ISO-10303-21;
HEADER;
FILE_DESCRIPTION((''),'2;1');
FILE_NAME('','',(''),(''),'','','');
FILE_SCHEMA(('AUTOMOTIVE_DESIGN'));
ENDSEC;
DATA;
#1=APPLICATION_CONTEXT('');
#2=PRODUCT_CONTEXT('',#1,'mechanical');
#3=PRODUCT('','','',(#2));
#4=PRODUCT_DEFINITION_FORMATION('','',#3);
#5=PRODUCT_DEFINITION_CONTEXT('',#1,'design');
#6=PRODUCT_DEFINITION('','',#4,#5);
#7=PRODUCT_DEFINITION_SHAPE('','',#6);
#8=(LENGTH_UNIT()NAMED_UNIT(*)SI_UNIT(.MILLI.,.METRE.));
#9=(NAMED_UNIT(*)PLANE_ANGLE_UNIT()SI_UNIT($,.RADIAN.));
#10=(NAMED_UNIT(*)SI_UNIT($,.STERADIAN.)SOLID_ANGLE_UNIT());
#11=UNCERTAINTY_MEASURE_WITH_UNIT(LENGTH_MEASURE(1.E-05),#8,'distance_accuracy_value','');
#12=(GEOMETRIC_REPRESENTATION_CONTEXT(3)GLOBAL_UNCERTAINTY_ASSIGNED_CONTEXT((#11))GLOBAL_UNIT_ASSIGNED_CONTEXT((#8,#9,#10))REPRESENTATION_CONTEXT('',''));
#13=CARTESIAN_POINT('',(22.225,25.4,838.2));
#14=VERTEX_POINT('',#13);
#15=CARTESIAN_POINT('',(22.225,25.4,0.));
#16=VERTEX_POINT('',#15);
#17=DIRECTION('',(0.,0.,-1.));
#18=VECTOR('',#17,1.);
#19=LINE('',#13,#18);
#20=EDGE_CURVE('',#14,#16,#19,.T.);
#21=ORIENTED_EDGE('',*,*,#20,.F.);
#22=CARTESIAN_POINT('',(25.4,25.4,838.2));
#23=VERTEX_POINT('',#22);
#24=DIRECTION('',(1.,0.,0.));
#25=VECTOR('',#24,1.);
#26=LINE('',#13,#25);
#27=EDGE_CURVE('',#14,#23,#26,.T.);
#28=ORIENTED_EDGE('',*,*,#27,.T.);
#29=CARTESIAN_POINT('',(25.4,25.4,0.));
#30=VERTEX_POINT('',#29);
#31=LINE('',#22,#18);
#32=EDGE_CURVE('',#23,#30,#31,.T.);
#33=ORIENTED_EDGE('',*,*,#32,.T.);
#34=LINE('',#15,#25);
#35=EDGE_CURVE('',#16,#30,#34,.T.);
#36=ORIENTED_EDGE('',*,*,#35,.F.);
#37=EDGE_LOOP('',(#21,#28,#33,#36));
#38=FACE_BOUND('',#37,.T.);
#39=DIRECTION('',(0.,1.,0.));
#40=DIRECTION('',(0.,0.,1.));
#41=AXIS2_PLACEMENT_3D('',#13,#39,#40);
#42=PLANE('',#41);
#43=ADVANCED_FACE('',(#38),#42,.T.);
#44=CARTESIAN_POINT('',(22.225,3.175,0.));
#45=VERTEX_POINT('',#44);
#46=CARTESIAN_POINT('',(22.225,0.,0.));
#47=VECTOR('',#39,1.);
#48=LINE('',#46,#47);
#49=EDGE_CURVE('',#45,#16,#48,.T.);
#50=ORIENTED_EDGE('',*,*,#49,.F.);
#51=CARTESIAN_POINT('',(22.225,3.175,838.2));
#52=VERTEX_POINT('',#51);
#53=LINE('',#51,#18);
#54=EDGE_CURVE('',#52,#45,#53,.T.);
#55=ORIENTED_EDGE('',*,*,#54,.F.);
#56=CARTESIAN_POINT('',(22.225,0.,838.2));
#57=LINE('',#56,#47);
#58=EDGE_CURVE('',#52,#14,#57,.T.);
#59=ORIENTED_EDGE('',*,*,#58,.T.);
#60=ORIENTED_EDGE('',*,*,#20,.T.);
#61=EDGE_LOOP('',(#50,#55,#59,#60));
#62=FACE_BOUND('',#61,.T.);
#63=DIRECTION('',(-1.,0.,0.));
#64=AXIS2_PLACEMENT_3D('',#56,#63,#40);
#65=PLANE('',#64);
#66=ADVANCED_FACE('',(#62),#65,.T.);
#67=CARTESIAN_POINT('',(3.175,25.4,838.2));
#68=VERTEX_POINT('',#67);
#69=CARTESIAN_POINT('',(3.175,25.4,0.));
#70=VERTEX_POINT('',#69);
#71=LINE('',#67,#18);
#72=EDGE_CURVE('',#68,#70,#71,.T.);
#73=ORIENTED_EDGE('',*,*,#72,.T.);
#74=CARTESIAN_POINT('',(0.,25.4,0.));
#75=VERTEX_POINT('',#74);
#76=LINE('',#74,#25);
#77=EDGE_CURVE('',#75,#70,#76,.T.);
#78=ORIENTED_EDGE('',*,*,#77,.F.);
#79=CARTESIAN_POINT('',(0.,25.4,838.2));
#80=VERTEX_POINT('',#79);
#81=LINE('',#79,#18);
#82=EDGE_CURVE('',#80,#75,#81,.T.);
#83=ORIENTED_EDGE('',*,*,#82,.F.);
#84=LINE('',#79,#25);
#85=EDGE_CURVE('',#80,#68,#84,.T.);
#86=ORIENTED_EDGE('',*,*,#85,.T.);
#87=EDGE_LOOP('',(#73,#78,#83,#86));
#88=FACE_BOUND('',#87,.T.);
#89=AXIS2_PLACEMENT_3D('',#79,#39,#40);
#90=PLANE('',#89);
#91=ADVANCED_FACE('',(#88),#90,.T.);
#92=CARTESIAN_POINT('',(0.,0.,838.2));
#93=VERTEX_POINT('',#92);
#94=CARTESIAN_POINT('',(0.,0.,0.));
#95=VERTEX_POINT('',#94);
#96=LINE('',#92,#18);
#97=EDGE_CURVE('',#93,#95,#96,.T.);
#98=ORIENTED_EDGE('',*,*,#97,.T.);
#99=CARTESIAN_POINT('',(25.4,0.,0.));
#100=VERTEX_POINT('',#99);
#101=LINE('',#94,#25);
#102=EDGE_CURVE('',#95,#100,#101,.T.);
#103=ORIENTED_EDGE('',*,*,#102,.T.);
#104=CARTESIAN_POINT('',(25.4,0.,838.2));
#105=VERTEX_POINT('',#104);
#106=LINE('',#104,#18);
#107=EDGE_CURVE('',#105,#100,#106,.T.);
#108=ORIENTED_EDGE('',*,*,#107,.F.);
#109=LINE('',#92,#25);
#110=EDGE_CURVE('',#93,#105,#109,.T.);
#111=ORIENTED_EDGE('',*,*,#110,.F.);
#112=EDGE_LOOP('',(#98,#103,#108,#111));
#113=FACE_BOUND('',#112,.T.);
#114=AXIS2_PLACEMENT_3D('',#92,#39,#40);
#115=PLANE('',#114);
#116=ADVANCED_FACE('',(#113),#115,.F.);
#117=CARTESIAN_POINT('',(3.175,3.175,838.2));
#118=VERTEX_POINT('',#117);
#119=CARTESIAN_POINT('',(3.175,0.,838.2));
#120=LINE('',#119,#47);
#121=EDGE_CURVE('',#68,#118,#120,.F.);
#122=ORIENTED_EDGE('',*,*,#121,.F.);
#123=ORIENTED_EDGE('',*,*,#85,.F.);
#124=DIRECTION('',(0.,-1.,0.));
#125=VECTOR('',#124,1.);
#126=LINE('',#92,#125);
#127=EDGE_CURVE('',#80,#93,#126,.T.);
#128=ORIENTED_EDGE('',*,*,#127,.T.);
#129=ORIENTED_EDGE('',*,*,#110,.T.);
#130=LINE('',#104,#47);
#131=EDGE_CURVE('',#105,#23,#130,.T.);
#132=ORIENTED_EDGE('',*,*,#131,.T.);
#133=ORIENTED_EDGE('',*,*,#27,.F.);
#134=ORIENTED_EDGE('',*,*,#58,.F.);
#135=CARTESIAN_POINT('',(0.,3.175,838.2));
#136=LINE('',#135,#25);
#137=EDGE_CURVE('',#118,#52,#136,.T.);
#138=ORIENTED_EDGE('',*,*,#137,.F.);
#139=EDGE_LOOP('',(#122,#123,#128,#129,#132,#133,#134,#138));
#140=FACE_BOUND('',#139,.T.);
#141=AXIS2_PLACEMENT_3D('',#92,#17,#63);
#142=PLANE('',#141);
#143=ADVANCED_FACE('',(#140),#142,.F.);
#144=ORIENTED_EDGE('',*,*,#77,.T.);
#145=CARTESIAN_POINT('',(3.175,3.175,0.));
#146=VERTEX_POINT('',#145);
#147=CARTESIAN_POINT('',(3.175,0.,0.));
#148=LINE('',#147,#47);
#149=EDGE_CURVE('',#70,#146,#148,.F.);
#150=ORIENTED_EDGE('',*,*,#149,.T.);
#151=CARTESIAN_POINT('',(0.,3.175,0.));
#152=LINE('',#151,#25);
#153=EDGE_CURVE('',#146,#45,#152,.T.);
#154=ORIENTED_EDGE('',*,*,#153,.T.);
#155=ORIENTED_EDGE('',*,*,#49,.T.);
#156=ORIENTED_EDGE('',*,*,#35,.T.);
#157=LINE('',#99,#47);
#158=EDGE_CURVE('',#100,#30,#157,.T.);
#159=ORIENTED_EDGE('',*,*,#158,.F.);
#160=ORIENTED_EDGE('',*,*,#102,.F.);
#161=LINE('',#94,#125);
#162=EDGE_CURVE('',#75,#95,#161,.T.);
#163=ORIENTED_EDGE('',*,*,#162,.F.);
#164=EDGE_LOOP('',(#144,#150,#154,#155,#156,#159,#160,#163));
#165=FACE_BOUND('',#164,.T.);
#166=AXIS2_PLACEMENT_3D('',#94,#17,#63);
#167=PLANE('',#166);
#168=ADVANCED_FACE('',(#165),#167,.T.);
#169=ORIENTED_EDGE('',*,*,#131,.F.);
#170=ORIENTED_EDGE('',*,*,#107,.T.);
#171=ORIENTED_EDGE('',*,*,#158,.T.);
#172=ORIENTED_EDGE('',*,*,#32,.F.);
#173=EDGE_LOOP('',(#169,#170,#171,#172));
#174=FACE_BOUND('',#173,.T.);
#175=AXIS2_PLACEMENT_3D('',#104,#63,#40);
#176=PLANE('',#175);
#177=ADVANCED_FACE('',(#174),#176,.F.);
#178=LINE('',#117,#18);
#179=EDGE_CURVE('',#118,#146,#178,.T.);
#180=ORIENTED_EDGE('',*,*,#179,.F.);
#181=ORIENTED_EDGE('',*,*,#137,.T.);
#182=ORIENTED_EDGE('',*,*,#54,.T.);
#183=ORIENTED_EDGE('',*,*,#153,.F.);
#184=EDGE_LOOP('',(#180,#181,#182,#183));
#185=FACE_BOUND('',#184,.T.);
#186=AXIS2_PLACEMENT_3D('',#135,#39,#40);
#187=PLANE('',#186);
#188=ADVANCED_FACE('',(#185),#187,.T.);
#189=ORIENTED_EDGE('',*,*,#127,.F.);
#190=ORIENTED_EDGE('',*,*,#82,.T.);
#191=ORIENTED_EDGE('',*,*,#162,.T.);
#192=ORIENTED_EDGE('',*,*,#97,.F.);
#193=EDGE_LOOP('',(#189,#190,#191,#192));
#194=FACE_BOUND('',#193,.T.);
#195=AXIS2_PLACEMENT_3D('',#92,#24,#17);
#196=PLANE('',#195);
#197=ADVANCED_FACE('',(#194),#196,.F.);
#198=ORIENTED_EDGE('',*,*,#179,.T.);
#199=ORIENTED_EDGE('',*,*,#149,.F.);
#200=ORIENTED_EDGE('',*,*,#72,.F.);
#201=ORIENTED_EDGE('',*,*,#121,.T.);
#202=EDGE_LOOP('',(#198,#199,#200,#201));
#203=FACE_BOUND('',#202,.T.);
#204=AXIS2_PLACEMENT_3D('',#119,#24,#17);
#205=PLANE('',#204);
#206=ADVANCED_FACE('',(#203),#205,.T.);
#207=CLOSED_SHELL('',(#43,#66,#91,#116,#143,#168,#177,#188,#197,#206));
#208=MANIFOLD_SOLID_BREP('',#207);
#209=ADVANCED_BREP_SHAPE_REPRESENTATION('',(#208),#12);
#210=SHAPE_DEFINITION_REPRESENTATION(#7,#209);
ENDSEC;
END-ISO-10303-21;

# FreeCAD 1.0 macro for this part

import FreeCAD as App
import Part
import Sketcher
Q = App.Units.Quantity

doc = App.newDocument("Part")
body = doc.addObject("PartDesign::Body", "Body")

# Sketch on XY plane
sketch1 = doc.addObject("Sketcher::SketchObject", "Sketch")
body.addObject(sketch1)
sketch1.AttachmentSupport = (doc.XY_Plane, [""])
sketch1.MapMode = "FlatFace"
sketch1.addGeometry(Part.LineSegment(App.Vector(25.4, 0, 0), App.Vector(25.4, 25.4, 0)), False)
sketch1.addGeometry(Part.LineSegment(App.Vector(25.4, 25.4, 0), App.Vector(22.2, 25.4, 0)), False)
sketch1.addGeometry(Part.LineSegment(App.Vector(22.2, 25.4, 0), App.Vector(22.2, 3.2, 0)), False)
sketch1.addGeometry(Part.LineSegment(App.Vector(22.2, 3.2, 0), App.Vector(3.2, 3.2, 0)), False)
sketch1.addGeometry(Part.LineSegment(App.Vector(3.2, 3.2, 0), App.Vector(3.2, 25.4, 0)), False)
sketch1.addGeometry(Part.LineSegment(App.Vector(3.2, 25.4, 0), App.Vector(0, 25.4, 0)), False)
sketch1.addGeometry(Part.LineSegment(App.Vector(0, 25.4, 0), App.Vector(0, 0, 0)), False)
sketch1.addGeometry(Part.LineSegment(App.Vector(0, 0, 0), App.Vector(25.4, 0, 0)), False)
sketch1.addConstraint(Sketcher.Constraint("Coincident", 0, 2, 1, 1))
sketch1.addConstraint(Sketcher.Constraint("Coincident", 1, 2, 2, 1))
sketch1.addConstraint(Sketcher.Constraint("Coincident", 2, 2, 3, 1))
sketch1.addConstraint(Sketcher.Constraint("Coincident", 3, 2, 4, 1))
sketch1.addConstraint(Sketcher.Constraint("Coincident", 4, 2, 5, 1))
sketch1.addConstraint(Sketcher.Constraint("Coincident", 5, 2, 6, 1))
sketch1.addConstraint(Sketcher.Constraint("Coincident", 6, 2, 7, 1))
sketch1.addConstraint(Sketcher.Constraint("Coincident", 7, 2, 0, 1))
sketch1.addConstraint(Sketcher.Constraint("Vertical", 0))
sketch1.addConstraint(Sketcher.Constraint("Horizontal", 1))
sketch1.addConstraint(Sketcher.Constraint("Vertical", 2))
sketch1.addConstraint(Sketcher.Constraint("Horizontal", 3))
sketch1.addConstraint(Sketcher.Constraint("Vertical", 4))
sketch1.addConstraint(Sketcher.Constraint("Horizontal", 5))
sketch1.addConstraint(Sketcher.Constraint("Vertical", 6))
sketch1.addConstraint(Sketcher.Constraint("Horizontal", 7))
sketch1.addConstraint(Sketcher.Constraint("Coincident", 6, 2, -1, 1))
sketch1.addConstraint(Sketcher.Constraint("Horizontal", 1, 2, 4, 2))
sketch1.addConstraint(Sketcher.Constraint("Equal", 1, 5))
sketch1.addConstraint(Sketcher.Constraint("Equal", 7, 0))
sketch1.addConstraint(Sketcher.Constraint("DistanceX", 7, 1, 7, 2, Q("1 in")))
sketch1.addConstraint(Sketcher.Constraint("DistanceX", 3, 2, 3, 1, Q("0.75 in")))
sketch1.addConstraint(Sketcher.Constraint("DistanceY", 2, 2, 2, 1, Q("0.875 in")))
pad1 = doc.addObject("PartDesign::Pad", "Pad")
body.addObject(pad1)
pad1.Profile = sketch1
pad1.Length = Q("33 in")

doc.recompute()
